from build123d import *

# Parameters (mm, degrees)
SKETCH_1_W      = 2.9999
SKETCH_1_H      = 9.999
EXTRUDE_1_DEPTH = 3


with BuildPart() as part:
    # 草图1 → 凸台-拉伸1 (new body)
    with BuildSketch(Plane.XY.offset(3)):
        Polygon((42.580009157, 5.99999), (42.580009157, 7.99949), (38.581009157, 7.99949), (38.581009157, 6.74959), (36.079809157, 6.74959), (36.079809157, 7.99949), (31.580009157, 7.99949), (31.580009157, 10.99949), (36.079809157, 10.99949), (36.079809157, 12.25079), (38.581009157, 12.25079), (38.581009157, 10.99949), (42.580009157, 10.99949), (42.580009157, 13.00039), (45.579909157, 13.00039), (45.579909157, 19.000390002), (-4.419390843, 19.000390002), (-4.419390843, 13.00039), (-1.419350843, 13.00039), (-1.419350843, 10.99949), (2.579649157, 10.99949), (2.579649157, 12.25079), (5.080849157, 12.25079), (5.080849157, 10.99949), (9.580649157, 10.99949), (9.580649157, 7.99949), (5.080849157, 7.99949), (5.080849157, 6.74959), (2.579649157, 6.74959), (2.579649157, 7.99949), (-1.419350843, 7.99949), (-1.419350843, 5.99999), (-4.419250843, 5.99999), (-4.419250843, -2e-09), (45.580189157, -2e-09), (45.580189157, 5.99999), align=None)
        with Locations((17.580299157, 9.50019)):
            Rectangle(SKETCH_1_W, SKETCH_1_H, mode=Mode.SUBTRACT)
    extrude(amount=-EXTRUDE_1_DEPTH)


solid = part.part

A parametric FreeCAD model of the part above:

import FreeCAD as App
import Part
import Sketcher

V = App.Vector


def add_polygon(sketch, points):
    """Adds a closed chain of lines whose ends are joined by coincident constraints."""
    first, n = sketch.GeometryCount, len(points)
    for a, b in zip(points, points[1:] + points[:1]):
        sketch.addGeometry(Part.LineSegment(App.Vector(*a, 0), App.Vector(*b, 0)), False)
    for i in range(n):
        sketch.addConstraint(Sketcher.Constraint("Coincident", first + i, 2, first + (i + 1) % n, 1))

doc = App.newDocument("Part")
body = doc.addObject("PartDesign::Body", "Body")

sketch1 = body.newObject("Sketcher::SketchObject", "Sketch")
sketch1.AttachmentSupport = (doc.getObject("XY_Plane"), [""])
sketch1.MapMode = "FlatFace"
sketch1.AttachmentOffset = App.Placement(V(0, 0, 3), App.Rotation())
add_polygon(sketch1, [(42.6, 6), (42.6, 8), (38.6, 8), (38.6, 6.7), (36.1, 6.7), (36.1, 8), (31.6, 8), (31.6, 11), (36.1, 11), (36.1, 12.3), (38.6, 12.3), (38.6, 11), (42.6, 11), (42.6, 13), (45.6, 13), (45.6, 19), (-4.4, 19), (-4.4, 13), (-1.4, 13), (-1.4, 11), (2.6, 11), (2.6, 12.3), (5.1, 12.3), (5.1, 11), (9.6, 11), (9.6, 8), (5.1, 8), (5.1, 6.7), (2.6, 6.7), (2.6, 8), (-1.4, 8), (-1.4, 6), (-4.4, 6), (-4.4, 0), (45.6, 0), (45.6, 6)])
add_polygon(sketch1, [(19.1, 4.5), (16.1, 4.5), (16.1, 14.5), (19.1, 14.5)])
sketch1.addConstraint([
    Sketcher.Constraint("Vertical", 0),
    Sketcher.Constraint("Horizontal", 1),
    Sketcher.Constraint("Vertical", 2),
    Sketcher.Constraint("Horizontal", 3),
    Sketcher.Constraint("Vertical", 4),
    Sketcher.Constraint("Horizontal", 5),
    Sketcher.Constraint("Vertical", 6),
    Sketcher.Constraint("Horizontal", 7),
    Sketcher.Constraint("Vertical", 8),
    Sketcher.Constraint("Horizontal", 9),
    Sketcher.Constraint("Vertical", 10),
    Sketcher.Constraint("Horizontal", 11),
    Sketcher.Constraint("Vertical", 12),
    Sketcher.Constraint("Horizontal", 13),
    Sketcher.Constraint("Vertical", 14),
    Sketcher.Constraint("Horizontal", 15),
    Sketcher.Constraint("Vertical", 16),
    Sketcher.Constraint("Horizontal", 17),
    Sketcher.Constraint("Vertical", 18),
    Sketcher.Constraint("Horizontal", 19),
    Sketcher.Constraint("Vertical", 20),
    Sketcher.Constraint("Horizontal", 21),
    Sketcher.Constraint("Vertical", 22),
    Sketcher.Constraint("Horizontal", 23),
    Sketcher.Constraint("Vertical", 24),
    Sketcher.Constraint("Horizontal", 25),
    Sketcher.Constraint("Vertical", 26),
    Sketcher.Constraint("Horizontal", 27),
    Sketcher.Constraint("Vertical", 28),
    Sketcher.Constraint("Horizontal", 29),
    Sketcher.Constraint("Vertical", 30),
    Sketcher.Constraint("Horizontal", 31),
    Sketcher.Constraint("Vertical", 32),
    Sketcher.Constraint("Horizontal", 33),
    Sketcher.Constraint("Vertical", 34),
    Sketcher.Constraint("Horizontal", 35),
    Sketcher.Constraint("Horizontal", 36),
    Sketcher.Constraint("Vertical", 37),
    Sketcher.Constraint("Horizontal", 38),
    Sketcher.Constraint("Vertical", 39),
    Sketcher.Constraint("PointOnObject", 32, 2, -1),
    Sketcher.Constraint("Horizontal", 1, 2, 4, 2),
    Sketcher.Constraint("Horizontal", 7, 2, 10, 2),
    Sketcher.Constraint("Horizontal", 13, 2, 16, 2),
    Sketcher.Constraint("Horizontal", 11, 2, 18, 2),
    Sketcher.Constraint("Horizontal", 9, 2, 20, 2),
    Sketcher.Constraint("Horizontal", 19, 2, 22, 2),
    Sketcher.Constraint("Horizontal", 5, 2, 24, 2),
    Sketcher.Constraint("Horizontal", 3, 2, 26, 2),
    Sketcher.Constraint("Horizontal", 25, 2, 28, 2),
    Sketcher.Constraint("Horizontal", 31, 2, 34, 2),
    Sketcher.Constraint("Vertical", 4, 2, 7, 2),
    Sketcher.Constraint("Vertical", 2, 2, 9, 2),
    Sketcher.Constraint("Vertical", 0, 2, 11, 2),
    Sketcher.Constraint("Vertical", 22, 2, 25, 2),
    Sketcher.Constraint("Vertical", 20, 2, 27, 2),
    Sketcher.Constraint("Vertical", 18, 2, 29, 2),
    Sketcher.Constraint("Equal", 11, 19),
    Sketcher.Constraint("Equal", 9, 21),
    Sketcher.Constraint("Equal", 7, 23),
    Sketcher.Constraint("Equal", 13, 31),
    Sketcher.Constraint("Equal", 31, 36),
    Sketcher.Constraint("DistanceY", 6, 1, 6, 2, 3.0),
    Sketcher.Constraint("DistanceY", 14, 1, 14, 2, 6.0),
    Sketcher.Constraint("DistanceX", 5, 2, 0, 2, 11.0),
    Sketcher.Constraint("DistanceX", 1, 2, 1, 1, 3.999),
    Sketcher.Constraint("DistanceY", 37, 1, 37, 2, 9.999),
    Sketcher.Constraint("DistanceX", 3, 2, 3, 1, 2.5012),
    Sketcher.Constraint("DistanceX", 13, 1, 13, 2, 2.9999),
    Sketcher.Constraint("DistanceX", 15, 2, 15, 1, 49.9993),
    Sketcher.Constraint("DistanceY", 0, 1, 0, 2, 1.9995),
    Sketcher.Constraint("DistanceY", 2, 2, 2, 1, 1.2499),
    Sketcher.Constraint("DistanceY", 8, 1, 8, 2, 1.2513),
    Sketcher.Constraint("DistanceY", 12, 1, 12, 2, 2.0009),
    Sketcher.Constraint("DistanceX", 17, 1, 17, 2, 3.00004),
    Sketcher.Constraint("DistanceX", 33, 1, 33, 2, 49.99944),
    Sketcher.Constraint("DistanceY", 32, 2, 32, 1, 5.99999),
    Sketcher.Constraint("DistanceX", 24, 2, 36, 2, 6.4997),
    Sketcher.Constraint("DistanceY", 36, 2, 24, 2, 3.4988),
    Sketcher.Constraint("DistanceX", -1, 1, 0, 2, 42.580009),
])
pad1 = body.newObject("PartDesign::Pad", "Pad")
pad1.Profile = sketch1
pad1.Length = 3
pad1.Reversed = True

doc.recompute()
